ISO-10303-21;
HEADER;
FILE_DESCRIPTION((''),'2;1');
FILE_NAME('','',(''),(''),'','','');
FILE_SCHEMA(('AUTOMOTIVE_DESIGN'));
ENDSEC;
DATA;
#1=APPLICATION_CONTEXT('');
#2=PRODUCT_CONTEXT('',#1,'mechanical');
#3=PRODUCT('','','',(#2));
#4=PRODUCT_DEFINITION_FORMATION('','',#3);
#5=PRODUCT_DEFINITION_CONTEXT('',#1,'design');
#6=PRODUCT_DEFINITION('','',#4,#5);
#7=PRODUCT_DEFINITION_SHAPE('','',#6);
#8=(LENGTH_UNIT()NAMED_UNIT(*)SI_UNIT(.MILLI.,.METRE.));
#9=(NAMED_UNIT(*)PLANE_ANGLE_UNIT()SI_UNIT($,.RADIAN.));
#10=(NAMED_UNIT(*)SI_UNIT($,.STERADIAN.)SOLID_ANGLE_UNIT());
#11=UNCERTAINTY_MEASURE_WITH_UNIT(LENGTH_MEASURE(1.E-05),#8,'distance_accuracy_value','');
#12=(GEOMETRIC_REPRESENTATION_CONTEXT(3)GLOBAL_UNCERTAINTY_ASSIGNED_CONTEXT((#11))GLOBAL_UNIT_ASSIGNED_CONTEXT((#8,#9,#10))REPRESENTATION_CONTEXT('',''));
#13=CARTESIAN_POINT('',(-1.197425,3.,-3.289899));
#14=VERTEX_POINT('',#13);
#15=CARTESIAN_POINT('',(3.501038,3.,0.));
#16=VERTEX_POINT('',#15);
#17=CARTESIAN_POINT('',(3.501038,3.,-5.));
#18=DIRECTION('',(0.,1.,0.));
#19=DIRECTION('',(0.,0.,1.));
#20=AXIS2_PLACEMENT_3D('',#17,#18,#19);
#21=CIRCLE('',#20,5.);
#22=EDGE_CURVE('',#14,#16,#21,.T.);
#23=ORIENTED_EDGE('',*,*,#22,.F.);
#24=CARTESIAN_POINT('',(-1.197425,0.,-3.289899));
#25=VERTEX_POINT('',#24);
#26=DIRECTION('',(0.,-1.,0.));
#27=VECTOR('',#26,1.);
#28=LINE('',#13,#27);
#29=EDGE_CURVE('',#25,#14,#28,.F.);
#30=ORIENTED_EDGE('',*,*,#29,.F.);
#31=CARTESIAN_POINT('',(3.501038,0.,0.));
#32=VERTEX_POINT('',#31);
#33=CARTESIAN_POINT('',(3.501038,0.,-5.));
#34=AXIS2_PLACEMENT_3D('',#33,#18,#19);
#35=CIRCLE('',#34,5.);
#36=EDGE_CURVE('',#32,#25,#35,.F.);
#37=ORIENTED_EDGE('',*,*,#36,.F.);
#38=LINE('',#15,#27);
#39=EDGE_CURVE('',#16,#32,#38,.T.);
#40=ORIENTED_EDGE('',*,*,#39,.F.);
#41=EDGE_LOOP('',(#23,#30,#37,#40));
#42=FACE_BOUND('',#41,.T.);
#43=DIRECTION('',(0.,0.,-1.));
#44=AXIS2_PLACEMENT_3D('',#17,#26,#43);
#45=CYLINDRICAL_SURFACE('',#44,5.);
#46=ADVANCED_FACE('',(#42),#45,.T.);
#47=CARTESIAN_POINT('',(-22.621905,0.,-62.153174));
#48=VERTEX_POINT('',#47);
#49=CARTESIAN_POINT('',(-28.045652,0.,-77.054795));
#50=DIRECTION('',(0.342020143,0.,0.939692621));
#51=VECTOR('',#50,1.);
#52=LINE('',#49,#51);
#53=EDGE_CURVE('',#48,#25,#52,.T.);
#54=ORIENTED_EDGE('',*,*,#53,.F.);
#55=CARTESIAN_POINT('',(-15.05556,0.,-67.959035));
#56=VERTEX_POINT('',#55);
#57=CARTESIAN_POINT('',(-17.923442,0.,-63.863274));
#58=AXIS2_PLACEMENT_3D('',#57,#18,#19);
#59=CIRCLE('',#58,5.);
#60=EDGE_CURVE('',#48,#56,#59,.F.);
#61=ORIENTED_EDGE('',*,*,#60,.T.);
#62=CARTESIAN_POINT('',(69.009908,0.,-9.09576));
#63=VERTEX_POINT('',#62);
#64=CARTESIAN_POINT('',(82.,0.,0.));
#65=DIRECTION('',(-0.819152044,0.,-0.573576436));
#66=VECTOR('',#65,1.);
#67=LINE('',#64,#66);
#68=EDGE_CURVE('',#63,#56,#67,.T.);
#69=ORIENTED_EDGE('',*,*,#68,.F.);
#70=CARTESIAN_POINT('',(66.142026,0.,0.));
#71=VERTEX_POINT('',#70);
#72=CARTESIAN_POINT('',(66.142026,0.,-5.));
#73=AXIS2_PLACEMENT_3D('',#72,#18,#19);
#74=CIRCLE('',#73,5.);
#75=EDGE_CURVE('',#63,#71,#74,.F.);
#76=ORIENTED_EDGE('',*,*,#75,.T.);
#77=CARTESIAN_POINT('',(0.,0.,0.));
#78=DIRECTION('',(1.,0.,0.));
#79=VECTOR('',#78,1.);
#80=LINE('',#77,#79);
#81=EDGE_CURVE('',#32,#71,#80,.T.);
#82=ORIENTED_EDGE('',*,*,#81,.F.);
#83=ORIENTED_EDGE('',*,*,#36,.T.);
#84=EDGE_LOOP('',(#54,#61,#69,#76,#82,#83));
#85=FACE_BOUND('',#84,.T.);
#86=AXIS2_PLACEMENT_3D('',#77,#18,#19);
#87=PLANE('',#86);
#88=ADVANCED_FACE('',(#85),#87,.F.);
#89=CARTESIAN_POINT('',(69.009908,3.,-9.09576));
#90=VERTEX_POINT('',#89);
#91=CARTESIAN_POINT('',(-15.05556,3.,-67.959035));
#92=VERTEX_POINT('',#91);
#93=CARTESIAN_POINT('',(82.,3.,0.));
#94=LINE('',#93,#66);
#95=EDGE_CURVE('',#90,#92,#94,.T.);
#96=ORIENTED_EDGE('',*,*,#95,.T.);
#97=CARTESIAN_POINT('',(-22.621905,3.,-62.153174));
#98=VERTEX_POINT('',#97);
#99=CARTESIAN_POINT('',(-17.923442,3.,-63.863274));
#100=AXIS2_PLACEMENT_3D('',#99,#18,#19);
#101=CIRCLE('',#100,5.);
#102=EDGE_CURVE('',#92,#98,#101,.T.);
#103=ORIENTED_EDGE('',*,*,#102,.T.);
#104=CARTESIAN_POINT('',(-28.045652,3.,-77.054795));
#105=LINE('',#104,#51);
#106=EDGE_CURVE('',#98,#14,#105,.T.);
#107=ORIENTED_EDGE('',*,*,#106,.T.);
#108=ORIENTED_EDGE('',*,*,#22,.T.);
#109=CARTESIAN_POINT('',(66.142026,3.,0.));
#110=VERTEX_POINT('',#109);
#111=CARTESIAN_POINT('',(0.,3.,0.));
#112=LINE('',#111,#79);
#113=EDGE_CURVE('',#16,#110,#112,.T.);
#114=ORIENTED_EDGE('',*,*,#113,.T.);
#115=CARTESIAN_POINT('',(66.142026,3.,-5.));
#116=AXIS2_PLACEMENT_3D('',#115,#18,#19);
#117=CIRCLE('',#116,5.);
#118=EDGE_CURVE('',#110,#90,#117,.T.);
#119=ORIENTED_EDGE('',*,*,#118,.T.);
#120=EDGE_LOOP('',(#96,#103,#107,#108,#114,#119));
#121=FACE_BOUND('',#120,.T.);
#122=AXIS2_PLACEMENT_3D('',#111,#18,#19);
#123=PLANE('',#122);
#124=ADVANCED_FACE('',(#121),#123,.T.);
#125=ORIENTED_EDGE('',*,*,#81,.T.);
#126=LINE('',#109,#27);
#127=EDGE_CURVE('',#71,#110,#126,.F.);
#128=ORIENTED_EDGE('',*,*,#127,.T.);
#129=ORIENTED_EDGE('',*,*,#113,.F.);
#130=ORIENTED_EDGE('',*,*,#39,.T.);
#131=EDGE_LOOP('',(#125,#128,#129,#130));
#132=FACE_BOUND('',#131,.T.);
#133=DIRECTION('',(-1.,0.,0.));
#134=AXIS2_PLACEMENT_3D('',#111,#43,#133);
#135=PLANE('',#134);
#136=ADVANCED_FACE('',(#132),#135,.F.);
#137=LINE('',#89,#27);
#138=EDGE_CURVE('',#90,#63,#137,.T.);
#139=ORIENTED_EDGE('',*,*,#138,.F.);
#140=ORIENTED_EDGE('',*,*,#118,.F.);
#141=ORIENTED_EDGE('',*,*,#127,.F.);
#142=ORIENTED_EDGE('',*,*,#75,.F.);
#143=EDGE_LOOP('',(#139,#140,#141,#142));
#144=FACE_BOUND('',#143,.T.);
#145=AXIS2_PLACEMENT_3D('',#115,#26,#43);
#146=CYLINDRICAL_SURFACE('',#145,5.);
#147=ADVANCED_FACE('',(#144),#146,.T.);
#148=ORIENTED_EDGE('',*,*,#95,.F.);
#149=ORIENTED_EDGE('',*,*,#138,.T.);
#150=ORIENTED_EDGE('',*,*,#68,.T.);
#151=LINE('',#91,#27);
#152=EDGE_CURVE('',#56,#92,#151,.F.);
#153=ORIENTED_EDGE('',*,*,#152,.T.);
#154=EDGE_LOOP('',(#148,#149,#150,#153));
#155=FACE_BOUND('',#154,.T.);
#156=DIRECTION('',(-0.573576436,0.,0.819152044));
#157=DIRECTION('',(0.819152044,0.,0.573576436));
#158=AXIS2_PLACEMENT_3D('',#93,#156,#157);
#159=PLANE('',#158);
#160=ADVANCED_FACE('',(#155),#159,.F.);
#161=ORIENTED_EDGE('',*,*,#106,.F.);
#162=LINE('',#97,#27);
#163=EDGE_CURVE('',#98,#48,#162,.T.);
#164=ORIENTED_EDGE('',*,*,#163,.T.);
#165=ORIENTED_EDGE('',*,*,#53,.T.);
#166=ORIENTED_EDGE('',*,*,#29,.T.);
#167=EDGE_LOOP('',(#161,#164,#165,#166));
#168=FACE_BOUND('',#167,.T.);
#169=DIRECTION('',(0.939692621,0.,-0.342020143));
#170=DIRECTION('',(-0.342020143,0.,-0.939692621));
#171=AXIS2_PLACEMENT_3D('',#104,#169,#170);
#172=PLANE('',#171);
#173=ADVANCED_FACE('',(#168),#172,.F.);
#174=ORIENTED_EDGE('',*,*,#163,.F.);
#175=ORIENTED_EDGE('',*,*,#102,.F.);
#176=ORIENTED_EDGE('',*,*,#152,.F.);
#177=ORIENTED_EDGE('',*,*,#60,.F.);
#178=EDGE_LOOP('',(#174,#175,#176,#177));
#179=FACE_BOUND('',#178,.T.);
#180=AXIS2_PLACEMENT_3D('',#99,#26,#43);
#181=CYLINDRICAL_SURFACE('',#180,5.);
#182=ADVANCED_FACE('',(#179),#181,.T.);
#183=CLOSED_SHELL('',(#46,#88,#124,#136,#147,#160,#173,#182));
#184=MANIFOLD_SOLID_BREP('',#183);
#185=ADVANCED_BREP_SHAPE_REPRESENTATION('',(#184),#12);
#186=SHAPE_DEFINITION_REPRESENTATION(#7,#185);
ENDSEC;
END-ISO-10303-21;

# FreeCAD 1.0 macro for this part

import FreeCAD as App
import Part
import Sketcher
from FreeCAD import Vector
Q = App.Units.Quantity


def edges_at(feature, points):
    """Names of the edges that pass closest to the given points."""
    edges = feature.Shape.Edges
    near = lambda p: min(range(len(edges)), key=lambda i: edges[i].distToShape(Part.Vertex(*p))[0])
    return sorted({f"Edge{near(p) + 1}" for p in points})


def add_polygon(sketch, points):
    """Adds a closed chain of lines whose ends are joined by coincident constraints."""
    first, n = sketch.GeometryCount, len(points)
    for a, b in zip(points, points[1:] + points[:1]):
        sketch.addGeometry(Part.LineSegment(App.Vector(*a, 0), App.Vector(*b, 0)), False)
    for i in range(n):
        sketch.addConstraint(Sketcher.Constraint("Coincident", first + i, 2, first + (i + 1) % n, 1))

doc = App.newDocument("Part")
params = doc.addObject("Spreadsheet::Sheet", "Params")
for row, (alias, value) in enumerate([
    ("sketch1_width", "82 mm"),
    ("pad1_length", "3 mm"),
    ("fillet_radius", "5 mm"),
], start=1):
    params.set(f"A{row}", alias)
    params.set(f"B{row}", "=" + value)
    params.setAlias(f"B{row}", alias)

body = doc.addObject("PartDesign::Body", "Body")

sketch1 = doc.addObject("Sketcher::SketchObject", "Sketch")
body.addObject(sketch1)
sketch1.AttachmentSupport = (doc.XZ_Plane, [""])
sketch1.MapMode = "FlatFace"
add_polygon(sketch1, [(0, 0), (82, 0), (-28, -77)])
sketch1.addConstraint([
    Sketcher.Constraint("Horizontal", 0),
    Sketcher.Constraint("Coincident", 2, 2, -1, 1),
    Sketcher.Constraint("DistanceX", 0, 1, 0, 2, 82.0),
    Sketcher.Constraint("Angle", 1, Q("-145 deg")),
    Sketcher.Constraint("Angle", 2, Q("70 deg")),
])
sketch1.setExpression("Constraints[5]", "Params.sketch1_width")
pad1 = doc.addObject("PartDesign::Pad", "Pad")
body.addObject(pad1)
pad1.Profile = sketch1
pad1.setExpression("Length", "Params.pad1_length")
pad1.Reversed = True
doc.recompute()

fillet = doc.addObject("PartDesign::Fillet", "Fillet")
body.addObject(fillet)
fillet.Base = (pad1, edges_at(pad1, [(-28.046, 1.5, -77.055), (82, 1.5, 0), (0, 1.5, 0)]))
fillet.setExpression("Radius", "Params.fillet_radius")

doc.recompute()
